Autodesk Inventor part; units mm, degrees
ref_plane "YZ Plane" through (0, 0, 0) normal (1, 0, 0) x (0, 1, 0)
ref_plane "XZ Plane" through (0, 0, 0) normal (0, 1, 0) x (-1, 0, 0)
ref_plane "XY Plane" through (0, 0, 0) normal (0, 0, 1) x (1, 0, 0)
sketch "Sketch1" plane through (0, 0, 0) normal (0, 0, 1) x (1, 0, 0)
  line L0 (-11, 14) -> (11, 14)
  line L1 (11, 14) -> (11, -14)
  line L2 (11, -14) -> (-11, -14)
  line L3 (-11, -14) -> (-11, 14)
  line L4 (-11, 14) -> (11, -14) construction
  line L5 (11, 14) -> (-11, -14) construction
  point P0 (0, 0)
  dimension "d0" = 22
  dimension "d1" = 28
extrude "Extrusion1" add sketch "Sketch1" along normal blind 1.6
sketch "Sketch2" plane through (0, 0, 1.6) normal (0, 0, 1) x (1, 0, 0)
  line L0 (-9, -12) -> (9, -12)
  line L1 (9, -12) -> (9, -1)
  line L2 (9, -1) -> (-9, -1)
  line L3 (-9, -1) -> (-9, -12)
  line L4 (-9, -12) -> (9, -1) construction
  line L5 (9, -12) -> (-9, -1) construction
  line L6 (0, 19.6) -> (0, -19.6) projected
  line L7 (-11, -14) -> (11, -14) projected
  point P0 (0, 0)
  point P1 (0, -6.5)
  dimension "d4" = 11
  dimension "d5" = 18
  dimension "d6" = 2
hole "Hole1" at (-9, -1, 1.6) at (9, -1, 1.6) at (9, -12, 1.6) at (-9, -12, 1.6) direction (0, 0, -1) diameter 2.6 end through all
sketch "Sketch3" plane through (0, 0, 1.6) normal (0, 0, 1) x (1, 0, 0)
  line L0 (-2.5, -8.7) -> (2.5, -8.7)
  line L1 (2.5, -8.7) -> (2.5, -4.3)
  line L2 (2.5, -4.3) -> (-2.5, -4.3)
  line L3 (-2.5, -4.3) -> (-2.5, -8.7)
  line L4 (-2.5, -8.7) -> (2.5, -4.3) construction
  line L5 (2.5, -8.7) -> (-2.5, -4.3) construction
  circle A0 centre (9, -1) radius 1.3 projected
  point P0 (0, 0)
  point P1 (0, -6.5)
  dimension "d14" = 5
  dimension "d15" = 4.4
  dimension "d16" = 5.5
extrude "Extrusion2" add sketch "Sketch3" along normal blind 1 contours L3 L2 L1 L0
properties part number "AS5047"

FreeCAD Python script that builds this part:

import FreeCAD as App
import Part
import Sketcher
Q = App.Units.Quantity


def add_polygon(sketch, points):
    """Adds a closed chain of lines whose ends are joined by coincident constraints."""
    first, n = sketch.GeometryCount, len(points)
    for a, b in zip(points, points[1:] + points[:1]):
        sketch.addGeometry(Part.LineSegment(App.Vector(*a, 0), App.Vector(*b, 0)), False)
    for i in range(n):
        sketch.addConstraint(Sketcher.Constraint("Coincident", first + i, 2, first + (i + 1) % n, 1))

doc = App.newDocument("Part")
params = doc.addObject("Spreadsheet::Sheet", "Params")
for row, (alias, value) in enumerate([
    ("sketch1_width", "22 mm"),
    ("sketch1_height", "28 mm"),
    ("pad1_length", "1.6 mm"),
    ("sketch2_diameter", "2.6 mm"),
    ("hole_diameter", "2.6 mm"),
    ("sketch3_width", "5 mm"),
    ("sketch3_height", "4.4 mm"),
    ("pad2_length", "1 mm"),
], start=1):
    params.set(f"A{row}", alias)
    params.set(f"B{row}", "=" + value)
    params.setAlias(f"B{row}", alias)

body = doc.addObject("PartDesign::Body", "Body")

sketch1 = body.newObject("Sketcher::SketchObject", "Sketch")
sketch1.AttachmentSupport = (doc.getObject("XY_Plane"), [""])
sketch1.MapMode = "FlatFace"
add_polygon(sketch1, [(11, 14), (-11, 14), (-11, -14), (11, -14)])
sketch1.addConstraint([
    Sketcher.Constraint("Horizontal", 0),
    Sketcher.Constraint("Vertical", 1),
    Sketcher.Constraint("Horizontal", 2),
    Sketcher.Constraint("Vertical", 3),
    Sketcher.Constraint("Symmetric", 0, 2, 2, 2, -1, 1),
    Sketcher.Constraint("DistanceX", 0, 2, 0, 1, Q("22 mm")),
    Sketcher.Constraint("DistanceY", 1, 2, 1, 1, Q("28 mm")),
])
sketch1.setExpression("Constraints[9]", "Params.sketch1_width")
sketch1.setExpression("Constraints[10]", "Params.sketch1_height")
pad1 = body.newObject("PartDesign::Pad", "Pad")
pad1.Profile = sketch1
pad1.setExpression("Length", "Params.pad1_length")

sketch2 = body.newObject("Sketcher::SketchObject", "Sketch001")
sketch2.AttachmentSupport = (doc.getObject("XY_Plane"), [""])
sketch2.MapMode = "FlatFace"
sketch2.AttachmentOffset = App.Placement(App.Vector(0, 0, 1.6), App.Rotation())
sketch2.addGeometry([
    Part.Circle(App.Vector(-9, -1, 0), App.Vector(0, 0, 1), 1.3),
    Part.Circle(App.Vector(9, -1, 0), App.Vector(0, 0, 1), 1.3),
    Part.Circle(App.Vector(9, -12, 0), App.Vector(0, 0, 1), 1.3),
    Part.Circle(App.Vector(-9, -12, 0), App.Vector(0, 0, 1), 1.3),
], False)
sketch2.addConstraint([
    Sketcher.Constraint("Equal", 0, 1),
    Sketcher.Constraint("Equal", 1, 2),
    Sketcher.Constraint("Equal", 2, 3),
    Sketcher.Constraint("Symmetric", 0, 3, 1, 3, -2),
    Sketcher.Constraint("Symmetric", 2, 3, 3, 3, -2),
    Sketcher.Constraint("Vertical", 1, 3, 2, 3),
    Sketcher.Constraint("Diameter", 0, Q("2.6 mm")),
    Sketcher.Constraint("DistanceX", 0, 3, -1, 1, Q("9 mm")),
    Sketcher.Constraint("DistanceY", 0, 3, -1, 1, Q("1 mm")),
    Sketcher.Constraint("DistanceY", 2, 3, -1, 1, Q("12 mm")),
])
sketch2.setExpression("Constraints[6]", "Params.sketch2_diameter")
doc.recompute()
hole = body.newObject("PartDesign::Hole", "Hole")
hole.Profile = sketch2
hole.ThreadType = "None"
hole.setExpression("Diameter", "Params.hole_diameter")
hole.DepthType = "ThroughAll"

sketch3 = body.newObject("Sketcher::SketchObject", "Sketch002")
sketch3.AttachmentSupport = (doc.getObject("XY_Plane"), [""])
sketch3.MapMode = "FlatFace"
sketch3.AttachmentOffset = App.Placement(App.Vector(0, 0, 1.6), App.Rotation())
add_polygon(sketch3, [(-2.5, -4.3), (-2.5, -8.7), (2.5, -8.7), (2.5, -4.3)])
sketch3.addConstraint([
    Sketcher.Constraint("Vertical", 0),
    Sketcher.Constraint("Horizontal", 1),
    Sketcher.Constraint("Vertical", 2),
    Sketcher.Constraint("Horizontal", 3),
    Sketcher.Constraint("DistanceX", 1, 1, 1, 2, Q("5 mm")),
    Sketcher.Constraint("DistanceY", 0, 2, 0, 1, Q("4.4 mm")),
    Sketcher.Constraint("DistanceX", 0, 2, -1, 1, Q("2.5 mm")),
    Sketcher.Constraint("DistanceY", 0, 2, -1, 1, Q("8.7 mm")),
])
sketch3.setExpression("Constraints[8]", "Params.sketch3_width")
sketch3.setExpression("Constraints[9]", "Params.sketch3_height")
pad2 = body.newObject("PartDesign::Pad", "Pad001")
pad2.Profile = sketch3
pad2.setExpression("Length", "Params.pad2_length")

doc.recompute()
